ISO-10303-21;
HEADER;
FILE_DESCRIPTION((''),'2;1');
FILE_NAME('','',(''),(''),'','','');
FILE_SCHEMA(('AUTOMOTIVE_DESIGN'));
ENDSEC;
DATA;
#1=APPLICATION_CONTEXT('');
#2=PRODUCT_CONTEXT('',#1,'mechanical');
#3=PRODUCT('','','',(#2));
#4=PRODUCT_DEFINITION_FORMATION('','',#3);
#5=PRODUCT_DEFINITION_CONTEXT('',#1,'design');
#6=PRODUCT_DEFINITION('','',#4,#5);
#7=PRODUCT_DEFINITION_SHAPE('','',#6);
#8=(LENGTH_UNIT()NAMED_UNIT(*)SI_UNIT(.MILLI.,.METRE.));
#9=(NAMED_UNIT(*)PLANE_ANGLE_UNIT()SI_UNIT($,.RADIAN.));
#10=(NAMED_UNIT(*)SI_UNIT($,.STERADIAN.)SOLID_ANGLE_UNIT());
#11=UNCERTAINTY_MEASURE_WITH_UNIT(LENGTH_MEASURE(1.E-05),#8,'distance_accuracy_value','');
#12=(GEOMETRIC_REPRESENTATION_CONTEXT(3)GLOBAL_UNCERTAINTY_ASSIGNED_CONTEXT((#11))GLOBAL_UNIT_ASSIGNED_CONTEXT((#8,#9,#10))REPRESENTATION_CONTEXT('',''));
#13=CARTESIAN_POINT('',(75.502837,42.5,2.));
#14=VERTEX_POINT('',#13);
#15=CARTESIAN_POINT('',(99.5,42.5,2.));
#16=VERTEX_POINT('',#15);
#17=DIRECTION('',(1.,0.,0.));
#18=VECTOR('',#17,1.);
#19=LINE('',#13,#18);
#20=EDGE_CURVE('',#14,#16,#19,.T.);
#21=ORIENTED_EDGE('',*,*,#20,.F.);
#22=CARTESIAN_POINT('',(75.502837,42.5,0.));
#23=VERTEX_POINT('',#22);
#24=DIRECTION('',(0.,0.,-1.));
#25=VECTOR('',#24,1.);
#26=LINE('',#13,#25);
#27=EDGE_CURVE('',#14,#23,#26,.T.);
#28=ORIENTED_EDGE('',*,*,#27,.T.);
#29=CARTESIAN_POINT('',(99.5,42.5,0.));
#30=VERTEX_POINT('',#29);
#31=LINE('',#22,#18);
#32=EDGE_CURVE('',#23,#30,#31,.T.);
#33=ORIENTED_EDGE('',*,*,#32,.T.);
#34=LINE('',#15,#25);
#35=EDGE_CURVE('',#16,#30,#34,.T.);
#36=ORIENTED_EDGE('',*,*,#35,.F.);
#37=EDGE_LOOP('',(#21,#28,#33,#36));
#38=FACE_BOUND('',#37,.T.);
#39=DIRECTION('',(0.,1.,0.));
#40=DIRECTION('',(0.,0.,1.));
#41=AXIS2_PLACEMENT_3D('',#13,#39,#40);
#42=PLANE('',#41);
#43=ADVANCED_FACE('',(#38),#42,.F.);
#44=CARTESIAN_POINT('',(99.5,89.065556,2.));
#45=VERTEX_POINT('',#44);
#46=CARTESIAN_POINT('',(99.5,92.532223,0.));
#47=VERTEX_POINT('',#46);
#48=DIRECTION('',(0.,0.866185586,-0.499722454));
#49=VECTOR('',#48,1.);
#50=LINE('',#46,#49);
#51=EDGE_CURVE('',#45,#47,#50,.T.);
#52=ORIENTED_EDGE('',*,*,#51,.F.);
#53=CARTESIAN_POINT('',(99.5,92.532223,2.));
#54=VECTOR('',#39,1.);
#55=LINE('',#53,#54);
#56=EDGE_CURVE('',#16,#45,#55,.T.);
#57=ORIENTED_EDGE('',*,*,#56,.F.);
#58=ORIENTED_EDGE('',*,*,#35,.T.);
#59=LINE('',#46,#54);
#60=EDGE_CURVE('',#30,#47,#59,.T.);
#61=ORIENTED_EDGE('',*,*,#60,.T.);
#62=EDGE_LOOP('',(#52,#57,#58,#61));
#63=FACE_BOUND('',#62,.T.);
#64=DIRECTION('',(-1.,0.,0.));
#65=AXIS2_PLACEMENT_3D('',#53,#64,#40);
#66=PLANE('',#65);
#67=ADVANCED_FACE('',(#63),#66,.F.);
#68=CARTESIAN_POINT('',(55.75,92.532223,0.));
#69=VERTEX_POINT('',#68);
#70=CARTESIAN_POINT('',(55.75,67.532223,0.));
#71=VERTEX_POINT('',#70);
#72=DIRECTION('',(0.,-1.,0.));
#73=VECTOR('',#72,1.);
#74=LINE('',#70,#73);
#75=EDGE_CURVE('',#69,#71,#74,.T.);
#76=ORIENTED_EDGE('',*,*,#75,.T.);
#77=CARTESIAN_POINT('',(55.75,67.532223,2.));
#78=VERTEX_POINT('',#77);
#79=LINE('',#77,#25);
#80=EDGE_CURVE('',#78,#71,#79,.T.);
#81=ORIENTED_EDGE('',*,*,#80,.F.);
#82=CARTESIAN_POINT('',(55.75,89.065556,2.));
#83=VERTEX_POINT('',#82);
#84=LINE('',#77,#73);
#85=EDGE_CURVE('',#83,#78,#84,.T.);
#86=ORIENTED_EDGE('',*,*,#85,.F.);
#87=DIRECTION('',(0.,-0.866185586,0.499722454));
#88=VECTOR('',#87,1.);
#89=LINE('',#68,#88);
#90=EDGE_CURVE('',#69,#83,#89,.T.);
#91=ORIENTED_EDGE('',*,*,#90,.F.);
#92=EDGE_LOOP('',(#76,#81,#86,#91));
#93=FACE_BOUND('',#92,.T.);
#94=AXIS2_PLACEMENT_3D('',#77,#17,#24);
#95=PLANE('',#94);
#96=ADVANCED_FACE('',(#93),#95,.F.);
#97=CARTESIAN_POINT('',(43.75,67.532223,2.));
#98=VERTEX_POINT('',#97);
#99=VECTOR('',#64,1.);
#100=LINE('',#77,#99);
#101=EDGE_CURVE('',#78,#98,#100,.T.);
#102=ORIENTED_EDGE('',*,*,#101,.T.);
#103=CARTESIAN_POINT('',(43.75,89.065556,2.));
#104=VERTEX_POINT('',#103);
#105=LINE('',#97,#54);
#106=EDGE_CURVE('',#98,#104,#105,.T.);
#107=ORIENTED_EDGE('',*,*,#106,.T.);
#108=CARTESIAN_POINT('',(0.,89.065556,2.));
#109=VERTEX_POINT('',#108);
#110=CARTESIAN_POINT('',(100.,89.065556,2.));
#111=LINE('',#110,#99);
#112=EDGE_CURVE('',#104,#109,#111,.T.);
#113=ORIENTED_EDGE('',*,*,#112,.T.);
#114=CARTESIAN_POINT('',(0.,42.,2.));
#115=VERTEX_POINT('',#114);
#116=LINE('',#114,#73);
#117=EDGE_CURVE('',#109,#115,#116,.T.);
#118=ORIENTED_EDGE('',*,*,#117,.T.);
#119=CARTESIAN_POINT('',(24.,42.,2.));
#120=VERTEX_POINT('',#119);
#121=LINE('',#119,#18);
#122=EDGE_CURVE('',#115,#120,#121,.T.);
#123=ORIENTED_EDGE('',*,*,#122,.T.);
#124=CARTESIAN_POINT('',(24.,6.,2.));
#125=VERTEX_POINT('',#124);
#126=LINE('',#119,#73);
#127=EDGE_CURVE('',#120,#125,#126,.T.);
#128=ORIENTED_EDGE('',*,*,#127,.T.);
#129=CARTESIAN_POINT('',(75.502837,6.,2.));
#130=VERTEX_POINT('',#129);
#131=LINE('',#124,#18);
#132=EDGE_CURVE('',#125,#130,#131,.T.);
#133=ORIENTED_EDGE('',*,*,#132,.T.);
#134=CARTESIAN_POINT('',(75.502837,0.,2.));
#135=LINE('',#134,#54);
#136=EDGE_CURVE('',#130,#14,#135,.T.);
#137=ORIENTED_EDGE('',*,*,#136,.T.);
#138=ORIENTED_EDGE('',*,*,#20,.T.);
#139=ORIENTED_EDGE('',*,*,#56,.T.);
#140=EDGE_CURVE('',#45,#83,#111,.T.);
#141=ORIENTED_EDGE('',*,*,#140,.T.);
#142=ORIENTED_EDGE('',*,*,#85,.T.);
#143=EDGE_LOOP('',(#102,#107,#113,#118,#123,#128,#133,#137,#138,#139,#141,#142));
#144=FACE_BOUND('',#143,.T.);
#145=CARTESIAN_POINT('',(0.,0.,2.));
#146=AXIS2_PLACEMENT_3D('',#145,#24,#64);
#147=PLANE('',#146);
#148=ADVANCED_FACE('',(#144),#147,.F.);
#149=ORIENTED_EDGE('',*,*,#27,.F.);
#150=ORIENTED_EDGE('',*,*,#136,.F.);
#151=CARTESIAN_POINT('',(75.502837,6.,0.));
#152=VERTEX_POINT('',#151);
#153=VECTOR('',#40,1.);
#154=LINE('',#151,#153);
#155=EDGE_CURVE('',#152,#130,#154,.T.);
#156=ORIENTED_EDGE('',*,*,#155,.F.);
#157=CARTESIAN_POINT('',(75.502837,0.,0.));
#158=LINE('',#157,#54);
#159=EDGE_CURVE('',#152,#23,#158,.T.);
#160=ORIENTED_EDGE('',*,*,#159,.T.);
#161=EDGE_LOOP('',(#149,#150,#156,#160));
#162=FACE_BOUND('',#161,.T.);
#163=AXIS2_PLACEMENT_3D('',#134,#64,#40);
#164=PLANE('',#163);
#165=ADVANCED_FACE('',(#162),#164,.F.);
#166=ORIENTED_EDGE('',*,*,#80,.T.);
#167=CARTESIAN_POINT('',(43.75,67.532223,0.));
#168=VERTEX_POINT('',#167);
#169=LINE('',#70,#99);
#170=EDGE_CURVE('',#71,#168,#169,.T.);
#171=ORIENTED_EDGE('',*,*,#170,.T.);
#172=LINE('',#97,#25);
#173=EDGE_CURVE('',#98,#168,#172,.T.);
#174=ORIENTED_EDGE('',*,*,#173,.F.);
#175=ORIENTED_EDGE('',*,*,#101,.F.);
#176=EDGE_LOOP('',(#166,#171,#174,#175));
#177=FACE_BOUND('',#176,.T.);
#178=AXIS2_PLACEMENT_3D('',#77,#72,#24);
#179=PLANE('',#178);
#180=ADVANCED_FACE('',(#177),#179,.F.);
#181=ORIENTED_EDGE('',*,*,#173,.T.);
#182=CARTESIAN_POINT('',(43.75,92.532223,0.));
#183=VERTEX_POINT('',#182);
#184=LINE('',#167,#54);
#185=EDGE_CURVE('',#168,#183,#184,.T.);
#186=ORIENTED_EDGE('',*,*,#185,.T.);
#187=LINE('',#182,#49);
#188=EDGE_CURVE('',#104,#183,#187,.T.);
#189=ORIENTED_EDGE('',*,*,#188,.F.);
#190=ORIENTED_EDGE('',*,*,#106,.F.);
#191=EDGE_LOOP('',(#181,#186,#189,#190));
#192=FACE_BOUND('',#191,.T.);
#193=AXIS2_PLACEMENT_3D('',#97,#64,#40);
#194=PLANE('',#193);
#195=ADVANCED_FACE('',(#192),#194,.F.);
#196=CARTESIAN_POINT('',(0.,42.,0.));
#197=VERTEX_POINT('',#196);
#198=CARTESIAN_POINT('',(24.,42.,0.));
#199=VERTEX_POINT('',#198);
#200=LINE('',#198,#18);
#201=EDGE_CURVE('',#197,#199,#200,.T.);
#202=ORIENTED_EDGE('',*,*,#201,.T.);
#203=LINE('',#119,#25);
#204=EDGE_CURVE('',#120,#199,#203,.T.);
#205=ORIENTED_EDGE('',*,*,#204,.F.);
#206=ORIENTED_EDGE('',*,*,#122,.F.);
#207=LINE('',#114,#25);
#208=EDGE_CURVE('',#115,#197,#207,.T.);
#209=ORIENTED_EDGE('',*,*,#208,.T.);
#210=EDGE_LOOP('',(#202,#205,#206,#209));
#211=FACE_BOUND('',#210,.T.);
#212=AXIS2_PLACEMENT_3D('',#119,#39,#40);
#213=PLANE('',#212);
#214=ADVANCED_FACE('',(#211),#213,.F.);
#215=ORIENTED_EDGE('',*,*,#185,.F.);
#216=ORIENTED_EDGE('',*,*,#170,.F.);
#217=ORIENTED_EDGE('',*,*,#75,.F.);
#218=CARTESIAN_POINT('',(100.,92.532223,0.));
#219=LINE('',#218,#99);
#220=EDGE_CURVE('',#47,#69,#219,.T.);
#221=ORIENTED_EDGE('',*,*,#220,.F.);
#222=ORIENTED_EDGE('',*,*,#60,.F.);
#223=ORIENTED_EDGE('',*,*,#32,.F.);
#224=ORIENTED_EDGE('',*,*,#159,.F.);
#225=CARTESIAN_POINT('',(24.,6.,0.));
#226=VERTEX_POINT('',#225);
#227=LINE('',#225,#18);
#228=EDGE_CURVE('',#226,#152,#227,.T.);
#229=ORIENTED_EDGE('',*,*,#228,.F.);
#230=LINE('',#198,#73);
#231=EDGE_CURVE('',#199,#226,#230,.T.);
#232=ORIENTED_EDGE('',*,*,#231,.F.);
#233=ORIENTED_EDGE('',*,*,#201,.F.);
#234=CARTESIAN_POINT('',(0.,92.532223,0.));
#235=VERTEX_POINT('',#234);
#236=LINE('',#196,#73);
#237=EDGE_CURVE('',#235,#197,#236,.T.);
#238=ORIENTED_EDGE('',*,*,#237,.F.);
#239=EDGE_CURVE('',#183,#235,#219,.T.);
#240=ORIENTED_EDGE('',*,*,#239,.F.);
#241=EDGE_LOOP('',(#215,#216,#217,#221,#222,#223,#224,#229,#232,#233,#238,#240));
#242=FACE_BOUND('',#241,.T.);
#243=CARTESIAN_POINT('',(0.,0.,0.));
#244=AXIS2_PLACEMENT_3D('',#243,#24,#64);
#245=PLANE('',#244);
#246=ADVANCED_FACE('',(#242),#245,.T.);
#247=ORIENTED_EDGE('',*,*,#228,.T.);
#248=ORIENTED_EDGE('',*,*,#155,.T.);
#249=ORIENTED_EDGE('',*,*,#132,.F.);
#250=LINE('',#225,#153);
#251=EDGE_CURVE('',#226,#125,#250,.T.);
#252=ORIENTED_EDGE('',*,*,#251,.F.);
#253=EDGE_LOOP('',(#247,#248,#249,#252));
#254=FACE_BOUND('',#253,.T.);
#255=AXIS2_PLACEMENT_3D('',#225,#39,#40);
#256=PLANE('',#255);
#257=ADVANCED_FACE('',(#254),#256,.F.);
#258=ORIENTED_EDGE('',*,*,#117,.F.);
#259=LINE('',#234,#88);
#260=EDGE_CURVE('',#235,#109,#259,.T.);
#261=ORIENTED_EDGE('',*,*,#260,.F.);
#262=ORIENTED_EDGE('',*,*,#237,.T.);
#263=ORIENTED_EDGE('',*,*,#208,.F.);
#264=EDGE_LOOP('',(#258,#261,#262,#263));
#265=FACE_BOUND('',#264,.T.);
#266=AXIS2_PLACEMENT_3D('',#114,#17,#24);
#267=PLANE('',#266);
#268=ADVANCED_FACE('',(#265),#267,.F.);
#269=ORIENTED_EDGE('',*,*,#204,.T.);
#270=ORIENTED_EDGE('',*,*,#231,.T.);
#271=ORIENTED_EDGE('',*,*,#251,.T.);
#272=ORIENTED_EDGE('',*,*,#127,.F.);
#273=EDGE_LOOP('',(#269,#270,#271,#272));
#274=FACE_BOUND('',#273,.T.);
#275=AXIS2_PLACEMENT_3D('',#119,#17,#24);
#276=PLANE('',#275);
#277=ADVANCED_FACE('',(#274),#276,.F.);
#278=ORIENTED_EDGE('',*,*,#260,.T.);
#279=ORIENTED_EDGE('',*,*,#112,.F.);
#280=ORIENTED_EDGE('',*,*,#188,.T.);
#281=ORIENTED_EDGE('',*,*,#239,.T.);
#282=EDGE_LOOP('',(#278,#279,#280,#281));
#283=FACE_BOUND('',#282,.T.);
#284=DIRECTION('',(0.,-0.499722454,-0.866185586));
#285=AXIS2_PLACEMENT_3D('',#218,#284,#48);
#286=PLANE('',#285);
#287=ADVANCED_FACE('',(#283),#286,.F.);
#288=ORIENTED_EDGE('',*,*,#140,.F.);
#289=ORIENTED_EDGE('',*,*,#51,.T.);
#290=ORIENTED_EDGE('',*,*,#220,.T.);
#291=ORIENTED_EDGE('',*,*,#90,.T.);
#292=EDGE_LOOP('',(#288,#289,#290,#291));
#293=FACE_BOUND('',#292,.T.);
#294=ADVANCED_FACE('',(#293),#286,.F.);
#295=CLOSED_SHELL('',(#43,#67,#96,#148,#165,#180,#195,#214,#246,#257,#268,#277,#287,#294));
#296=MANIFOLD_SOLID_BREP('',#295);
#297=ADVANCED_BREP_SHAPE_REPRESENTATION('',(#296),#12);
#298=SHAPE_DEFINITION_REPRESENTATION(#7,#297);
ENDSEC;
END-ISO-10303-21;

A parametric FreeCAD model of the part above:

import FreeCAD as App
import Part
import Sketcher

V = App.Vector


def add_polygon(sketch, points):
    """Adds a closed chain of lines whose ends are joined by coincident constraints."""
    first, n = sketch.GeometryCount, len(points)
    for a, b in zip(points, points[1:] + points[:1]):
        sketch.addGeometry(Part.LineSegment(App.Vector(*a, 0), App.Vector(*b, 0)), False)
    for i in range(n):
        sketch.addConstraint(Sketcher.Constraint("Coincident", first + i, 2, first + (i + 1) % n, 1))

doc = App.newDocument("Part")
body = doc.addObject("PartDesign::Body", "Body")

# Sketch on XY plane
sketch1 = body.newObject("Sketcher::SketchObject", "Sketch")
sketch1.AttachmentSupport = (doc.getObject("XY_Plane"), [""])
sketch1.MapMode = "FlatFace"
add_polygon(sketch1, [(100, 42), (100, 100), (0, 100), (0, 42), (24, 42), (24, 0), (76, 0), (76, 42)])  # lines 0-7
sketch1.addConstraint(Sketcher.Constraint("Vertical", 0))
sketch1.addConstraint(Sketcher.Constraint("Horizontal", 1))
sketch1.addConstraint(Sketcher.Constraint("Vertical", 2))
sketch1.addConstraint(Sketcher.Constraint("Horizontal", 3))
sketch1.addConstraint(Sketcher.Constraint("Vertical", 4))
sketch1.addConstraint(Sketcher.Constraint("Horizontal", 5))
sketch1.addConstraint(Sketcher.Constraint("Vertical", 6))
sketch1.addConstraint(Sketcher.Constraint("Horizontal", 7))
sketch1.addConstraint(Sketcher.Constraint("PointOnObject", 1, 2, -2))
sketch1.addConstraint(Sketcher.Constraint("PointOnObject", 4, 2, -1))
sketch1.addConstraint(Sketcher.Constraint("Horizontal", 3, 2, 6, 2))
sketch1.addConstraint(Sketcher.Constraint("Equal", 3, 7))
sketch1.addConstraint(Sketcher.Constraint("DistanceX", 1, 2, 1, 1, 100.0))
sketch1.addConstraint(Sketcher.Constraint("DistanceX", 3, 1, 3, 2, 24.0))
sketch1.addConstraint(Sketcher.Constraint("DistanceY", 0, 1, 0, 2, 58.0))
sketch1.addConstraint(Sketcher.Constraint("DistanceY", 4, 2, 4, 1, 42.0))
pad1 = body.newObject("PartDesign::Pad", "Pad")
pad1.Profile = sketch1
pad1.Length = 2

# Sketch on YZ plane
sketch2 = body.newObject("Sketcher::SketchObject", "Sketch001")
sketch2.AttachmentSupport = (doc.getObject("YZ_Plane"), [""])
sketch2.MapMode = "FlatFace"
sketch2.AttachmentOffset = App.Placement(V(0, 0, 100), App.Rotation())
add_polygon(sketch2, [(89.065556, 2), (100, 2), (100, 0), (92.532223, 0)])  # lines 0-3
sketch2.addConstraint(Sketcher.Constraint("Horizontal", 0))
sketch2.addConstraint(Sketcher.Constraint("Vertical", 1))
sketch2.addConstraint(Sketcher.Constraint("Horizontal", 2))
sketch2.addConstraint(Sketcher.Constraint("PointOnObject", 1, 2, -1))
sketch2.addConstraint(Sketcher.Constraint("DistanceY", 1, 2, 1, 1, 2.0))
sketch2.addConstraint(Sketcher.Constraint("DistanceX", -1, 1, 0, 2, 100.0))
sketch2.addConstraint(Sketcher.Constraint("Distance", 3, 4.002222))
sketch2.addConstraint(Sketcher.Constraint("DistanceX", 0, 1, 0, 2, 10.934444))
pocket1 = body.newObject("PartDesign::Pocket", "Pocket")
pocket1.Profile = sketch2
pocket1.Length = 100

# Sketch on XY plane
sketch3 = body.newObject("Sketcher::SketchObject", "Sketch002")
sketch3.AttachmentSupport = (doc.getObject("XY_Plane"), [""])
sketch3.MapMode = "FlatFace"
add_polygon(sketch3, [(99.5, 92.532223), (100, 92.532223), (100, 42), (76, 42), (76, 0), (75.502837, 0), (75.502837, 42.5), (99.5, 42.5)])  # lines 0-7
sketch3.addConstraint(Sketcher.Constraint("Horizontal", 0))
sketch3.addConstraint(Sketcher.Constraint("Vertical", 1))
sketch3.addConstraint(Sketcher.Constraint("Horizontal", 2))
sketch3.addConstraint(Sketcher.Constraint("Vertical", 3))
sketch3.addConstraint(Sketcher.Constraint("Horizontal", 4))
sketch3.addConstraint(Sketcher.Constraint("Vertical", 5))
sketch3.addConstraint(Sketcher.Constraint("Horizontal", 6))
sketch3.addConstraint(Sketcher.Constraint("Vertical", 7))
sketch3.addConstraint(Sketcher.Constraint("PointOnObject", 3, 2, -1))
sketch3.addConstraint(Sketcher.Constraint("DistanceX", 2, 2, 2, 1, 24.0))
sketch3.addConstraint(Sketcher.Constraint("DistanceY", 3, 2, 3, 1, 42.0))
sketch3.addConstraint(Sketcher.Constraint("DistanceX", 0, 1, 0, 2, 0.5))
sketch3.addConstraint(Sketcher.Constraint("DistanceY", 5, 1, 5, 2, 42.5))
sketch3.addConstraint(Sketcher.Constraint("DistanceX", -1, 1, 0, 2, 100.0))
sketch3.addConstraint(Sketcher.Constraint("DistanceX", 4, 2, 4, 1, 0.497163))
sketch3.addConstraint(Sketcher.Constraint("DistanceY", 1, 2, 1, 1, 50.532223))
pocket2 = body.newObject("PartDesign::Pocket", "Pocket001")
pocket2.Profile = sketch3
pocket2.Length = 2
pocket2.Reversed = True

# Sketch on XY plane
sketch4 = body.newObject("Sketcher::SketchObject", "Sketch003")
sketch4.AttachmentSupport = (doc.getObject("XY_Plane"), [""])
sketch4.MapMode = "FlatFace"
add_polygon(sketch4, [(55.75, 92.532223), (55.75, 67.532223), (43.75, 67.532223), (43.75, 92.532223)])  # lines 0-3
sketch4.addConstraint(Sketcher.Constraint("Vertical", 0))
sketch4.addConstraint(Sketcher.Constraint("Horizontal", 1))
sketch4.addConstraint(Sketcher.Constraint("Vertical", 2))
sketch4.addConstraint(Sketcher.Constraint("Horizontal", 3))
sketch4.addConstraint(Sketcher.Constraint("DistanceX", 1, 2, 1, 1, 12.0))
sketch4.addConstraint(Sketcher.Constraint("DistanceY", 0, 2, 0, 1, 25.0))
sketch4.addConstraint(Sketcher.Constraint("DistanceX", -1, 1, 0, 2, 55.75))
sketch4.addConstraint(Sketcher.Constraint("DistanceY", -1, 1, 0, 2, 67.532223))
pocket3 = body.newObject("PartDesign::Pocket", "Pocket002")
pocket3.Profile = sketch4
pocket3.Length = 2
pocket3.Reversed = True

# Sketch on YZ plane
sketch5 = body.newObject("Sketcher::SketchObject", "Sketch004")
sketch5.AttachmentSupport = (doc.getObject("YZ_Plane"), [""])
sketch5.MapMode = "FlatFace"
sketch5.AttachmentOffset = App.Placement(V(0, 0, 24), App.Rotation())
add_polygon(sketch5, [(6, 2), (0, 2), (0, 0), (6, 0)])  # lines 0-3
sketch5.addConstraint(Sketcher.Constraint("Horizontal", 0))
sketch5.addConstraint(Sketcher.Constraint("Vertical", 1))
sketch5.addConstraint(Sketcher.Constraint("Horizontal", 2))
sketch5.addConstraint(Sketcher.Constraint("Vertical", 3))
sketch5.addConstraint(Sketcher.Constraint("Coincident", 1, 2, -1, 1))
sketch5.addConstraint(Sketcher.Constraint("DistanceX", 0, 2, 0, 1, 6.0))
sketch5.addConstraint(Sketcher.Constraint("DistanceY", 1, 2, 1, 1, 2.0))
pocket4 = body.newObject("PartDesign::Pocket", "Pocket003")
pocket4.Profile = sketch5
pocket4.Length = 51.502837
pocket4.Reversed = True

doc.recompute()
